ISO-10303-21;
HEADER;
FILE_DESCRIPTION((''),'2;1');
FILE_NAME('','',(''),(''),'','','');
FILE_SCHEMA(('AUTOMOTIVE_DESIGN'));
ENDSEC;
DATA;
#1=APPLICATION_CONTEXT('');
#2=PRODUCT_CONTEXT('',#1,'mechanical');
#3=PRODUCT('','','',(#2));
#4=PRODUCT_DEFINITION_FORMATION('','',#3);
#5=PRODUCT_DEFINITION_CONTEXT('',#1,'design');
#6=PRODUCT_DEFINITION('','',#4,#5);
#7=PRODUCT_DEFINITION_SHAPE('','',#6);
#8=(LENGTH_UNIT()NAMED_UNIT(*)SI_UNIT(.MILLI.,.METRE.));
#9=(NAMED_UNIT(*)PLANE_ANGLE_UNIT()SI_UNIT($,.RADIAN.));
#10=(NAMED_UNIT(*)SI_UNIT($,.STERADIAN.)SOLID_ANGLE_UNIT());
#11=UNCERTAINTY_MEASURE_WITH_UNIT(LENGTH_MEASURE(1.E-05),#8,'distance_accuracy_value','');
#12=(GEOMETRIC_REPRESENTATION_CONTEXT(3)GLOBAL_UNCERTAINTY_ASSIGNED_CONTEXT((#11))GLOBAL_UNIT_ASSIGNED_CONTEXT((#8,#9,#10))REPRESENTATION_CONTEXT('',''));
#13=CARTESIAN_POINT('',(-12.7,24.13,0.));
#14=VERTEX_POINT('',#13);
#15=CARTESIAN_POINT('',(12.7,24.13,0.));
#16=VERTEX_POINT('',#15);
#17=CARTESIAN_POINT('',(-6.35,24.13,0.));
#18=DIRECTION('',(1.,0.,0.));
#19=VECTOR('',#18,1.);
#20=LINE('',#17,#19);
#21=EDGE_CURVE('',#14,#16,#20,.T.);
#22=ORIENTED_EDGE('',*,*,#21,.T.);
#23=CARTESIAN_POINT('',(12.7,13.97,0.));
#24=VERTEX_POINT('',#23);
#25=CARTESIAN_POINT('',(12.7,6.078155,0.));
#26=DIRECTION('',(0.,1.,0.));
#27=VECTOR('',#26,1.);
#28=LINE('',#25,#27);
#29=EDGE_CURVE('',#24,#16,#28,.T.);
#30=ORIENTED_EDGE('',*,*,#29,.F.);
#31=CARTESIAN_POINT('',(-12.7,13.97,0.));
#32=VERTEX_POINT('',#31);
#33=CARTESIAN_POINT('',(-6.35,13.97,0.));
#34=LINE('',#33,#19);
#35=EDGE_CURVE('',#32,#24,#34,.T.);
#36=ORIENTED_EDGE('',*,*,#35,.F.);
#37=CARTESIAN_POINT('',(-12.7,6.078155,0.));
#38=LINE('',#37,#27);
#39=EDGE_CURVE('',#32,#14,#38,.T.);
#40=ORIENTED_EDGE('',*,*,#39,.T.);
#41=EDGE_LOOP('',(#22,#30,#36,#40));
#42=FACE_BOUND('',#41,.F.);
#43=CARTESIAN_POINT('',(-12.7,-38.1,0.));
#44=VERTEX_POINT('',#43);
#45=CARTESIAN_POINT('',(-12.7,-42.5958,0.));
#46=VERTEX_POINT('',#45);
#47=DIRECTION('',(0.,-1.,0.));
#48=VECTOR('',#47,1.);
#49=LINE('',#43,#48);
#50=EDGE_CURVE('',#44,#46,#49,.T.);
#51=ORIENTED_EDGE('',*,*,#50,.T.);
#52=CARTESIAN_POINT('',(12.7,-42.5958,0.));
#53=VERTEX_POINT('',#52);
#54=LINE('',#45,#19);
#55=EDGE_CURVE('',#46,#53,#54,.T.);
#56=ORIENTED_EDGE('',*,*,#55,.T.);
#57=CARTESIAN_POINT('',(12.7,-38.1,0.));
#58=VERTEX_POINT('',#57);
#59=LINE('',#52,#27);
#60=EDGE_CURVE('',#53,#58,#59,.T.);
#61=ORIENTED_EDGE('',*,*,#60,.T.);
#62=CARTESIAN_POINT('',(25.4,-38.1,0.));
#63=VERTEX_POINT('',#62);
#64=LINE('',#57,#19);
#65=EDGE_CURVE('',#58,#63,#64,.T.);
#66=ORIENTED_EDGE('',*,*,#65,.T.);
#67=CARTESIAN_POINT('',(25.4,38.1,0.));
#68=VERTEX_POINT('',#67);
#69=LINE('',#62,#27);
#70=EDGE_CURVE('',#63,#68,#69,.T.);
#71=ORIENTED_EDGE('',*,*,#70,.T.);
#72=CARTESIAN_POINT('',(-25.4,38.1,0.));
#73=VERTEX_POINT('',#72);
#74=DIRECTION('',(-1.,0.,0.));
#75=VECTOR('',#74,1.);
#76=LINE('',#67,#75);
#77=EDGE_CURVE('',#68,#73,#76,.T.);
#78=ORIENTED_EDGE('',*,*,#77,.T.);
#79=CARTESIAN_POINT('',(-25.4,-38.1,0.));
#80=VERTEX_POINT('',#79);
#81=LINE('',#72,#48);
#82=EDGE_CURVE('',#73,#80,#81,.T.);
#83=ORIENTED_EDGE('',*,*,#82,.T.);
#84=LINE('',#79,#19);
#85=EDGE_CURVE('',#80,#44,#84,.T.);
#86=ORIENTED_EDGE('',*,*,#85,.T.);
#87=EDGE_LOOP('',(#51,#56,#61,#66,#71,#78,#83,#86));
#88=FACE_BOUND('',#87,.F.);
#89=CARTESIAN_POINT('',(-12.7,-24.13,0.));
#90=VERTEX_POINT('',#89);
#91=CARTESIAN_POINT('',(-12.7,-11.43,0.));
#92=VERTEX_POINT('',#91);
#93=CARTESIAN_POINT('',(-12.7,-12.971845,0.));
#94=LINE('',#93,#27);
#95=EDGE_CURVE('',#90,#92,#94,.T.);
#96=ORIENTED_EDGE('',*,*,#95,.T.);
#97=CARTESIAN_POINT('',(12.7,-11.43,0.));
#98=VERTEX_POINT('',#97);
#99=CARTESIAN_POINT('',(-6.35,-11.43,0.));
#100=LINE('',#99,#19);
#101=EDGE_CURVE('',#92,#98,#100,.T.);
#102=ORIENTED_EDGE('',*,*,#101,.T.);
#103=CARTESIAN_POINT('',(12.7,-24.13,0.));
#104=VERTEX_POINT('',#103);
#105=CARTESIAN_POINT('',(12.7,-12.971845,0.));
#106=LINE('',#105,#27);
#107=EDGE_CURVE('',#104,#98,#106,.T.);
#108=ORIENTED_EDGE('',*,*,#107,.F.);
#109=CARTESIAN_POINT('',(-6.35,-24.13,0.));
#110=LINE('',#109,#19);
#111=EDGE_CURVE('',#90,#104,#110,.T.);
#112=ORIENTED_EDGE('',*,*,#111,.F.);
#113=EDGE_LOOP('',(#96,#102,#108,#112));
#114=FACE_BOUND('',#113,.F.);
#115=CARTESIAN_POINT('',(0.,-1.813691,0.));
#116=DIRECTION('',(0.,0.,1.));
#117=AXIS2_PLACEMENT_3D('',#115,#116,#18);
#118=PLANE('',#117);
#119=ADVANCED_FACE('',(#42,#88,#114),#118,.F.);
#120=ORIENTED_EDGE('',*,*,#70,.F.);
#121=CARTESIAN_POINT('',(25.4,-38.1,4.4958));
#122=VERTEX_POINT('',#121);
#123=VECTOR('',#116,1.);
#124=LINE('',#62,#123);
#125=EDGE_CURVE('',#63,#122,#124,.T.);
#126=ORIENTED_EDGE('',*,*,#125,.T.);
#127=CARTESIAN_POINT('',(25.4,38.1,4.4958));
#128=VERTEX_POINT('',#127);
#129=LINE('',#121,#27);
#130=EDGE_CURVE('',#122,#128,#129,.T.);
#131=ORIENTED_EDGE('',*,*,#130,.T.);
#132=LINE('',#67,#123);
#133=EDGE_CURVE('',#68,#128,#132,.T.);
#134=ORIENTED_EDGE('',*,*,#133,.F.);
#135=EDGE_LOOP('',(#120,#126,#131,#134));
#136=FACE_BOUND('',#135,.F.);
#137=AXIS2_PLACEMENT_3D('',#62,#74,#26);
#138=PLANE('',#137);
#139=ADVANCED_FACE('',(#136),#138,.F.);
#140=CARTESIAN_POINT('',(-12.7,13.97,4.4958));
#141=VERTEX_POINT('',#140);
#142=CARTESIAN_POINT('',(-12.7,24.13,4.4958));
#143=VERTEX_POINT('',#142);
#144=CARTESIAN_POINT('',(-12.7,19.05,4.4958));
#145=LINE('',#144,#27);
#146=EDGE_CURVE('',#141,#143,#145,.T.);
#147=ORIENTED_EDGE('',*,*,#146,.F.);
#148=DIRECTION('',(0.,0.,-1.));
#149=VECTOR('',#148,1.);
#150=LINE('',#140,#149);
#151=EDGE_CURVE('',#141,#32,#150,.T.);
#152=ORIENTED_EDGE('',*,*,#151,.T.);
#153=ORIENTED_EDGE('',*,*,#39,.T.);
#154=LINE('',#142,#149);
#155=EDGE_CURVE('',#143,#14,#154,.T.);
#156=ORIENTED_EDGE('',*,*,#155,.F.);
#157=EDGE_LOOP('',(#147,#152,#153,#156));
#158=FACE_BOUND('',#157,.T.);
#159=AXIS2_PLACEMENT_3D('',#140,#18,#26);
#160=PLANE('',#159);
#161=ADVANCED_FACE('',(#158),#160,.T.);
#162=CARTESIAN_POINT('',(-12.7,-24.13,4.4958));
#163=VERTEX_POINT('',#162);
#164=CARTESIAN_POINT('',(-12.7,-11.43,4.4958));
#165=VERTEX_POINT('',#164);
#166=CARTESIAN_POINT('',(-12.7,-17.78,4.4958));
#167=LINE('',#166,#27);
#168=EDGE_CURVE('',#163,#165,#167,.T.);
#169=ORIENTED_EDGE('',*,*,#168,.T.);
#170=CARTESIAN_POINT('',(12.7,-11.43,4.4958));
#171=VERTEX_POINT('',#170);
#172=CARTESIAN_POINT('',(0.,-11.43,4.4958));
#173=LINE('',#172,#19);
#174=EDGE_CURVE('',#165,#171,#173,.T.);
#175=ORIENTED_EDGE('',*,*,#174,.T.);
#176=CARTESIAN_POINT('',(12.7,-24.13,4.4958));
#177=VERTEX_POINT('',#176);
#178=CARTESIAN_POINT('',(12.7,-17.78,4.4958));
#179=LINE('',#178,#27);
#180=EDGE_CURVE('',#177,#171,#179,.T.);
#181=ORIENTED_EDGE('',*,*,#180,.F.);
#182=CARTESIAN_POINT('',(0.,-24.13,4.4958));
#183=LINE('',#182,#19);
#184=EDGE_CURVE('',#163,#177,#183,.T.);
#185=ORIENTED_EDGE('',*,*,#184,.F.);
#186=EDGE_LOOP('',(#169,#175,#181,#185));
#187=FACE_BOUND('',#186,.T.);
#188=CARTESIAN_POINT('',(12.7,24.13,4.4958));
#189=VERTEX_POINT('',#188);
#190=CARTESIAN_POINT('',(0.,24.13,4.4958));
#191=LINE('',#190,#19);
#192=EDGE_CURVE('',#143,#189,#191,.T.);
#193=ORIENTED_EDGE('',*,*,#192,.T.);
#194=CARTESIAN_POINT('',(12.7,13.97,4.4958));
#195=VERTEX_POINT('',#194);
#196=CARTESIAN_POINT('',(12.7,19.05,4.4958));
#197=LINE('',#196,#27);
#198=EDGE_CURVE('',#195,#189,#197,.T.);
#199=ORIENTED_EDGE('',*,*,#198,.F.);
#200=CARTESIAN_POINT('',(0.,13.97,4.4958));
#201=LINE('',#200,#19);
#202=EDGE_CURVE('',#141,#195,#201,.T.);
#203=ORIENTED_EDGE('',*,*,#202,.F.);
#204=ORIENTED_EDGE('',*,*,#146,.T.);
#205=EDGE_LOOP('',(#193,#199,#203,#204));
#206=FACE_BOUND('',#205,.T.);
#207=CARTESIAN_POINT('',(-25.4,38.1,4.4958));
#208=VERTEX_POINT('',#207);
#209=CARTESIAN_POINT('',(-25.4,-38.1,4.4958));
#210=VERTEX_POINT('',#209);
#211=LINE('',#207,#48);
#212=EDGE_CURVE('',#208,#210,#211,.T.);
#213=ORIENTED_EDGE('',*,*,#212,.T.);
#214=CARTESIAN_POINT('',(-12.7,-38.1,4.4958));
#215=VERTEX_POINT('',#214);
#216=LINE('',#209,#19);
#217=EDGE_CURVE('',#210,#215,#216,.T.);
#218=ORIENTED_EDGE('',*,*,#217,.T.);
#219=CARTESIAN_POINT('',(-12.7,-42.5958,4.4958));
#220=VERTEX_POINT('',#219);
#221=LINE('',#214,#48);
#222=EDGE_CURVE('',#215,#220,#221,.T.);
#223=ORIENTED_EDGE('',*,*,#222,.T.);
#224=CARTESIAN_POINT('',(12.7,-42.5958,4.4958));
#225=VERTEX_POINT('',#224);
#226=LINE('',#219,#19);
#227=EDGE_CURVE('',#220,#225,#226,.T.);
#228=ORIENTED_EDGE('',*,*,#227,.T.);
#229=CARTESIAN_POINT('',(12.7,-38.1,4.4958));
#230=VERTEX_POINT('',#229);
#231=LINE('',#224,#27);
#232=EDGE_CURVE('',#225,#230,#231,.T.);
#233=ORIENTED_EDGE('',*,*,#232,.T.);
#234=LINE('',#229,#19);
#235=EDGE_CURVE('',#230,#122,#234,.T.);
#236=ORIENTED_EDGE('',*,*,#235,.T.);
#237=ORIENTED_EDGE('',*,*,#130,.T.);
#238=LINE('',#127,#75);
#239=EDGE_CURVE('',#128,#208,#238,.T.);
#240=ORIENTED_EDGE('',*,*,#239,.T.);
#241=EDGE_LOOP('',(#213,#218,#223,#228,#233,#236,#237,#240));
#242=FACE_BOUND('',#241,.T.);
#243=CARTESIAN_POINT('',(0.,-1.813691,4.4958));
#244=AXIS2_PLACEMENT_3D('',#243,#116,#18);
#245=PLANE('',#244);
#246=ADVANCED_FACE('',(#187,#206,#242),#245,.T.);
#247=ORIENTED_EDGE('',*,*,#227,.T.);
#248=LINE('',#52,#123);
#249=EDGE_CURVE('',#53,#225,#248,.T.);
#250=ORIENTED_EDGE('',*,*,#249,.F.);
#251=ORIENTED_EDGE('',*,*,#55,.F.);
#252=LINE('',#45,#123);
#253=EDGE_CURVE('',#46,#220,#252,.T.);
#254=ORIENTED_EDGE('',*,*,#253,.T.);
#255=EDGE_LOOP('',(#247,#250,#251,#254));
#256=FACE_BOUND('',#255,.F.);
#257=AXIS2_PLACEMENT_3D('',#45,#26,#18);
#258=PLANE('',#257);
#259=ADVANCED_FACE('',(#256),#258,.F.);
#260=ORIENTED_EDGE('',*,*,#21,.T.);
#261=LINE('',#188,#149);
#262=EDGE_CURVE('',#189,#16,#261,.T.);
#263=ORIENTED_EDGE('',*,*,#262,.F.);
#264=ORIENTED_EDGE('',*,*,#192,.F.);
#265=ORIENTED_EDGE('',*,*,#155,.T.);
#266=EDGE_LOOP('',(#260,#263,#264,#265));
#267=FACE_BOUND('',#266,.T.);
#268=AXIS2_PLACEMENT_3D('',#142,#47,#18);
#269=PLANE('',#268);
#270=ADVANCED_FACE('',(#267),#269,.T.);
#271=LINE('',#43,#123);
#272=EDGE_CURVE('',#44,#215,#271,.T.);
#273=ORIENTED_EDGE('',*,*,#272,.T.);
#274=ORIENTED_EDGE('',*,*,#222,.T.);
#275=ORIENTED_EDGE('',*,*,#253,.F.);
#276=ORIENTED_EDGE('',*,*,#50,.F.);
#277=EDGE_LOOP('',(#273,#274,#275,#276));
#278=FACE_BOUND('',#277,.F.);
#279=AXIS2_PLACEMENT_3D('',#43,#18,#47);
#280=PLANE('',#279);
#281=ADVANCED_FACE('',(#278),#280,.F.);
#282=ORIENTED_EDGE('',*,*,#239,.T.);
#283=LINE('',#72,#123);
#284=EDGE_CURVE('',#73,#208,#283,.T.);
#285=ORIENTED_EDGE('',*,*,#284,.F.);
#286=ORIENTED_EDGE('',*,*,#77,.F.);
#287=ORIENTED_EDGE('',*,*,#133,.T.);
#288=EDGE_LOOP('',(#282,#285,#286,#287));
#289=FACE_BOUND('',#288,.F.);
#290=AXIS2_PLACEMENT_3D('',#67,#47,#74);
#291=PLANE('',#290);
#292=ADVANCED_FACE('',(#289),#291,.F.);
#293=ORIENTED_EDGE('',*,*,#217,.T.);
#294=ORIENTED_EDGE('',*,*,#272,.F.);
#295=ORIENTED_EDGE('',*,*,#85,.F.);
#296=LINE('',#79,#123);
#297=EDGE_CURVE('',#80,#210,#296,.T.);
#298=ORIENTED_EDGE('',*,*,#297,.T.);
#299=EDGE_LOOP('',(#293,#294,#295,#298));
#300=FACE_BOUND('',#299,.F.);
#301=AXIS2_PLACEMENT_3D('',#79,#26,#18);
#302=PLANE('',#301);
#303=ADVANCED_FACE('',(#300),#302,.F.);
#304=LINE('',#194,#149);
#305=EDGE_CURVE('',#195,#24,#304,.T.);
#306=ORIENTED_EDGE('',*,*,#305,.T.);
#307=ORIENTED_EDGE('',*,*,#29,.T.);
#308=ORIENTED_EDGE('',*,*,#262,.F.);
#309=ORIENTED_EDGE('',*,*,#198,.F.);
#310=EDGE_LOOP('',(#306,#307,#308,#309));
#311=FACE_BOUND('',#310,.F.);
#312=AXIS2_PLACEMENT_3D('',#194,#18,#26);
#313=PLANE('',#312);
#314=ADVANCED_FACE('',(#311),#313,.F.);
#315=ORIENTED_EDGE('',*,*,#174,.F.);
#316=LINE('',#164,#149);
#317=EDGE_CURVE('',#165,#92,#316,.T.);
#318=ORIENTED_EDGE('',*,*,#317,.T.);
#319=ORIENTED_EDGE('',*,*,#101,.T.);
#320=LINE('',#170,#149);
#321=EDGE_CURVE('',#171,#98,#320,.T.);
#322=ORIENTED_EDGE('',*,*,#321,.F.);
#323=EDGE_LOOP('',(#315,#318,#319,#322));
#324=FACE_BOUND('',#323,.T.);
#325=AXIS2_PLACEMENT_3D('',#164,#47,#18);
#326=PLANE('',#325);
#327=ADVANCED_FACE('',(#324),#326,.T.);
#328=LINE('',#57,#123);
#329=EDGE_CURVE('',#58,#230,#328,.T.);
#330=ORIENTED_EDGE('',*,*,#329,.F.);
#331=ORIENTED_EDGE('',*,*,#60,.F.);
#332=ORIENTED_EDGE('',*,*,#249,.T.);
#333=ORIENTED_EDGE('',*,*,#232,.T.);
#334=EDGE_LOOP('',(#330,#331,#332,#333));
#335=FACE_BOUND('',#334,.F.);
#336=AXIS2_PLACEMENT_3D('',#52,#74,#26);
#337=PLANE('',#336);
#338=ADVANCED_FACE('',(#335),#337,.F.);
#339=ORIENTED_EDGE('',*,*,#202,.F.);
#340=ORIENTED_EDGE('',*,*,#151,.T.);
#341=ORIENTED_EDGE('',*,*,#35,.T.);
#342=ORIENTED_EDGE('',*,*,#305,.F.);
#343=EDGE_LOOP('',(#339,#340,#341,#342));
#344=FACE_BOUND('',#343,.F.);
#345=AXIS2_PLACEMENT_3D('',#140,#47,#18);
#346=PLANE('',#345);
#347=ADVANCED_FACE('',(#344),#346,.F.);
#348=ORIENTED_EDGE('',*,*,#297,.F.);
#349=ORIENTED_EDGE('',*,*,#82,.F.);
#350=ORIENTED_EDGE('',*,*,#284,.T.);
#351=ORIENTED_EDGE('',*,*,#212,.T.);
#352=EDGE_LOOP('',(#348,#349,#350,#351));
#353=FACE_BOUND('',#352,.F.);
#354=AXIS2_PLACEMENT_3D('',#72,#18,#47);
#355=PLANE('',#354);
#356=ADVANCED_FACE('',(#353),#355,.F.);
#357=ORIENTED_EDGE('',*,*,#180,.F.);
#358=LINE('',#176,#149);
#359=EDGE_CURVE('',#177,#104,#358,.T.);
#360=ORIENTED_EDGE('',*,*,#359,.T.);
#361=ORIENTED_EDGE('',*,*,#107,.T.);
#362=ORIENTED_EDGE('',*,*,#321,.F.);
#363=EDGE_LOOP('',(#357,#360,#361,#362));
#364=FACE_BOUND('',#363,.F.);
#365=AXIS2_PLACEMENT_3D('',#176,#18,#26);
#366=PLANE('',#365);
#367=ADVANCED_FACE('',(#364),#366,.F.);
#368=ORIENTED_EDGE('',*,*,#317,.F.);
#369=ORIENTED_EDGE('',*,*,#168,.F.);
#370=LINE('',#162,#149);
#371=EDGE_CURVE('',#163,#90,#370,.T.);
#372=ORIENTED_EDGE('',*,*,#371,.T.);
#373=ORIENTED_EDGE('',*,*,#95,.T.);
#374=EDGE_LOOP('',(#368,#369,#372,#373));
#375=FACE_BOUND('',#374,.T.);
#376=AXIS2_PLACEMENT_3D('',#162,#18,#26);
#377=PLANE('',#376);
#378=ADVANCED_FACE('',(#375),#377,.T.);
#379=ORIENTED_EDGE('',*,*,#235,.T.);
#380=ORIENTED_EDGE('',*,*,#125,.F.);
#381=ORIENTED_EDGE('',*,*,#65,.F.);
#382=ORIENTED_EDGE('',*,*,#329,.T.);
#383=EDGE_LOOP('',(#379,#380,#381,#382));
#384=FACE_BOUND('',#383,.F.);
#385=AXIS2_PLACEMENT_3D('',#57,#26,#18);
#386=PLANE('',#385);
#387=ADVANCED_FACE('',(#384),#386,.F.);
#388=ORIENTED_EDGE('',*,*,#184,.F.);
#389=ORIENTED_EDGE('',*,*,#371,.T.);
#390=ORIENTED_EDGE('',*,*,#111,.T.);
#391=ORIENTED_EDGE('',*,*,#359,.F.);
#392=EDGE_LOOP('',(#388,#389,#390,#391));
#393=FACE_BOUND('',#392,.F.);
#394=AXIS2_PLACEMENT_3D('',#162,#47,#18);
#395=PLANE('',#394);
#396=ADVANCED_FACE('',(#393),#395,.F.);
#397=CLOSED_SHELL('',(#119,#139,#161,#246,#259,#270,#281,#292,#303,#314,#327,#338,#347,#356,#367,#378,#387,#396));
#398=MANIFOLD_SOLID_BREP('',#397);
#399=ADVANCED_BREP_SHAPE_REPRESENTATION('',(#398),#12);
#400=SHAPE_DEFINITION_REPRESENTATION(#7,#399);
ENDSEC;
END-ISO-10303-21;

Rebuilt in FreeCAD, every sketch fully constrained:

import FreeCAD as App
import Part
import Sketcher

V = App.Vector
Q = App.Units.Quantity


def add_polygon(sketch, points):
    """Adds a closed chain of lines whose ends are joined by coincident constraints."""
    first, n = sketch.GeometryCount, len(points)
    for a, b in zip(points, points[1:] + points[:1]):
        sketch.addGeometry(Part.LineSegment(App.Vector(*a, 0), App.Vector(*b, 0)), False)
    for i in range(n):
        sketch.addConstraint(Sketcher.Constraint("Coincident", first + i, 2, first + (i + 1) % n, 1))

doc = App.newDocument("Part")
params = doc.addObject("Spreadsheet::Sheet", "Params")
for row, (alias, value) in enumerate([
    ("sketch1_width", "2 in"),
    ("sketch1_width2", "1 in"),
    ("sketch1_height", "3 in"),
    ("sketch1_height2", "0.177 in"),
    ("pad1_length", "0.177 in"),
    ("sketch2_width", "1 in"),
    ("sketch2_height", "0.4 in"),
    ("sketch2_height2", "0.5 in"),
], start=1):
    params.set(f"A{row}", alias)
    params.set(f"B{row}", "=" + value)
    params.setAlias(f"B{row}", alias)

body = doc.addObject("PartDesign::Body", "Body")

sketch1 = body.newObject("Sketcher::SketchObject", "Sketch")
sketch1.AttachmentSupport = (doc.getObject("XY_Plane"), [""])
sketch1.MapMode = "FlatFace"
add_polygon(sketch1, [(25.4, 38.1), (-25.4, 38.1), (-25.4, -38.1), (-12.7, -38.1), (-12.7, -42.6), (12.7, -42.6), (12.7, -38.1), (25.4, -38.1)])
sketch1.addConstraint(Sketcher.Constraint("Horizontal", 0))
sketch1.addConstraint(Sketcher.Constraint("Vertical", 1))
sketch1.addConstraint(Sketcher.Constraint("Horizontal", 2))
sketch1.addConstraint(Sketcher.Constraint("Vertical", 3))
sketch1.addConstraint(Sketcher.Constraint("Horizontal", 4))
sketch1.addConstraint(Sketcher.Constraint("Vertical", 5))
sketch1.addConstraint(Sketcher.Constraint("Horizontal", 6))
sketch1.addConstraint(Sketcher.Constraint("Vertical", 7))
sketch1.addConstraint(Sketcher.Constraint("Symmetric", 0, 2, 6, 2, -1, 1))
sketch1.addConstraint(Sketcher.Constraint("Symmetric", 2, 2, 5, 2, -2))
sketch1.addConstraint(Sketcher.Constraint("DistanceX", 0, 2, 0, 1, Q("2 in")))
sketch1.addConstraint(Sketcher.Constraint("DistanceX", 4, 1, 4, 2, Q("1 in")))
sketch1.addConstraint(Sketcher.Constraint("DistanceY", 1, 2, 1, 1, Q("3 in")))
sketch1.addConstraint(Sketcher.Constraint("DistanceY", 3, 2, 3, 1, Q("0.177 in")))
sketch1.setExpression("Constraints[18]", "Params.sketch1_width")
sketch1.setExpression("Constraints[19]", "Params.sketch1_width2")
sketch1.setExpression("Constraints[20]", "Params.sketch1_height")
sketch1.setExpression("Constraints[21]", "Params.sketch1_height2")
pad1 = body.newObject("PartDesign::Pad", "Pad")
pad1.Profile = sketch1
pad1.setExpression("Length", "Params.pad1_length")

sketch2 = body.newObject("Sketcher::SketchObject", "Sketch001")
sketch2.AttachmentSupport = (doc.getObject("XY_Plane"), [""])
sketch2.MapMode = "FlatFace"
sketch2.AttachmentOffset = App.Placement(V(0, 0, 0.177 * 25.4), App.Rotation())
add_polygon(sketch2, [(-13, 24), (-13, 14), (13, 14), (13, 24)])
add_polygon(sketch2, [(-13, -11), (-13, -24), (13, -24), (13, -11)])
sketch2.addConstraint(Sketcher.Constraint("Vertical", 0))
sketch2.addConstraint(Sketcher.Constraint("Horizontal", 1))
sketch2.addConstraint(Sketcher.Constraint("Vertical", 2))
sketch2.addConstraint(Sketcher.Constraint("Horizontal", 3))
sketch2.addConstraint(Sketcher.Constraint("Vertical", 4))
sketch2.addConstraint(Sketcher.Constraint("Horizontal", 5))
sketch2.addConstraint(Sketcher.Constraint("Vertical", 6))
sketch2.addConstraint(Sketcher.Constraint("Horizontal", 7))
sketch2.addConstraint(Sketcher.Constraint("Symmetric", 2, 2, 4, 2, -1, 1))
sketch2.addConstraint(Sketcher.Constraint("Vertical", 3, 2, 4, 2))
sketch2.addConstraint(Sketcher.Constraint("Vertical", 2, 2, 5, 2))
sketch2.addConstraint(Sketcher.Constraint("DistanceX", 1, 1, 1, 2, Q("1 in")))
sketch2.addConstraint(Sketcher.Constraint("DistanceY", 0, 2, 0, 1, Q("0.4 in")))
sketch2.addConstraint(Sketcher.Constraint("DistanceY", 4, 2, 4, 1, Q("0.5 in")))
sketch2.addConstraint(Sketcher.Constraint("DistanceY", 6, 2, 1, 2, Q("1 in")))
sketch2.setExpression("Constraints[19]", "Params.sketch2_width")
sketch2.setExpression("Constraints[20]", "Params.sketch2_height")
sketch2.setExpression("Constraints[21]", "Params.sketch2_height2")
pocket1 = body.newObject("PartDesign::Pocket", "Pocket")
pocket1.Profile = sketch2
pocket1.Type = "ThroughAll"

doc.recompute()
